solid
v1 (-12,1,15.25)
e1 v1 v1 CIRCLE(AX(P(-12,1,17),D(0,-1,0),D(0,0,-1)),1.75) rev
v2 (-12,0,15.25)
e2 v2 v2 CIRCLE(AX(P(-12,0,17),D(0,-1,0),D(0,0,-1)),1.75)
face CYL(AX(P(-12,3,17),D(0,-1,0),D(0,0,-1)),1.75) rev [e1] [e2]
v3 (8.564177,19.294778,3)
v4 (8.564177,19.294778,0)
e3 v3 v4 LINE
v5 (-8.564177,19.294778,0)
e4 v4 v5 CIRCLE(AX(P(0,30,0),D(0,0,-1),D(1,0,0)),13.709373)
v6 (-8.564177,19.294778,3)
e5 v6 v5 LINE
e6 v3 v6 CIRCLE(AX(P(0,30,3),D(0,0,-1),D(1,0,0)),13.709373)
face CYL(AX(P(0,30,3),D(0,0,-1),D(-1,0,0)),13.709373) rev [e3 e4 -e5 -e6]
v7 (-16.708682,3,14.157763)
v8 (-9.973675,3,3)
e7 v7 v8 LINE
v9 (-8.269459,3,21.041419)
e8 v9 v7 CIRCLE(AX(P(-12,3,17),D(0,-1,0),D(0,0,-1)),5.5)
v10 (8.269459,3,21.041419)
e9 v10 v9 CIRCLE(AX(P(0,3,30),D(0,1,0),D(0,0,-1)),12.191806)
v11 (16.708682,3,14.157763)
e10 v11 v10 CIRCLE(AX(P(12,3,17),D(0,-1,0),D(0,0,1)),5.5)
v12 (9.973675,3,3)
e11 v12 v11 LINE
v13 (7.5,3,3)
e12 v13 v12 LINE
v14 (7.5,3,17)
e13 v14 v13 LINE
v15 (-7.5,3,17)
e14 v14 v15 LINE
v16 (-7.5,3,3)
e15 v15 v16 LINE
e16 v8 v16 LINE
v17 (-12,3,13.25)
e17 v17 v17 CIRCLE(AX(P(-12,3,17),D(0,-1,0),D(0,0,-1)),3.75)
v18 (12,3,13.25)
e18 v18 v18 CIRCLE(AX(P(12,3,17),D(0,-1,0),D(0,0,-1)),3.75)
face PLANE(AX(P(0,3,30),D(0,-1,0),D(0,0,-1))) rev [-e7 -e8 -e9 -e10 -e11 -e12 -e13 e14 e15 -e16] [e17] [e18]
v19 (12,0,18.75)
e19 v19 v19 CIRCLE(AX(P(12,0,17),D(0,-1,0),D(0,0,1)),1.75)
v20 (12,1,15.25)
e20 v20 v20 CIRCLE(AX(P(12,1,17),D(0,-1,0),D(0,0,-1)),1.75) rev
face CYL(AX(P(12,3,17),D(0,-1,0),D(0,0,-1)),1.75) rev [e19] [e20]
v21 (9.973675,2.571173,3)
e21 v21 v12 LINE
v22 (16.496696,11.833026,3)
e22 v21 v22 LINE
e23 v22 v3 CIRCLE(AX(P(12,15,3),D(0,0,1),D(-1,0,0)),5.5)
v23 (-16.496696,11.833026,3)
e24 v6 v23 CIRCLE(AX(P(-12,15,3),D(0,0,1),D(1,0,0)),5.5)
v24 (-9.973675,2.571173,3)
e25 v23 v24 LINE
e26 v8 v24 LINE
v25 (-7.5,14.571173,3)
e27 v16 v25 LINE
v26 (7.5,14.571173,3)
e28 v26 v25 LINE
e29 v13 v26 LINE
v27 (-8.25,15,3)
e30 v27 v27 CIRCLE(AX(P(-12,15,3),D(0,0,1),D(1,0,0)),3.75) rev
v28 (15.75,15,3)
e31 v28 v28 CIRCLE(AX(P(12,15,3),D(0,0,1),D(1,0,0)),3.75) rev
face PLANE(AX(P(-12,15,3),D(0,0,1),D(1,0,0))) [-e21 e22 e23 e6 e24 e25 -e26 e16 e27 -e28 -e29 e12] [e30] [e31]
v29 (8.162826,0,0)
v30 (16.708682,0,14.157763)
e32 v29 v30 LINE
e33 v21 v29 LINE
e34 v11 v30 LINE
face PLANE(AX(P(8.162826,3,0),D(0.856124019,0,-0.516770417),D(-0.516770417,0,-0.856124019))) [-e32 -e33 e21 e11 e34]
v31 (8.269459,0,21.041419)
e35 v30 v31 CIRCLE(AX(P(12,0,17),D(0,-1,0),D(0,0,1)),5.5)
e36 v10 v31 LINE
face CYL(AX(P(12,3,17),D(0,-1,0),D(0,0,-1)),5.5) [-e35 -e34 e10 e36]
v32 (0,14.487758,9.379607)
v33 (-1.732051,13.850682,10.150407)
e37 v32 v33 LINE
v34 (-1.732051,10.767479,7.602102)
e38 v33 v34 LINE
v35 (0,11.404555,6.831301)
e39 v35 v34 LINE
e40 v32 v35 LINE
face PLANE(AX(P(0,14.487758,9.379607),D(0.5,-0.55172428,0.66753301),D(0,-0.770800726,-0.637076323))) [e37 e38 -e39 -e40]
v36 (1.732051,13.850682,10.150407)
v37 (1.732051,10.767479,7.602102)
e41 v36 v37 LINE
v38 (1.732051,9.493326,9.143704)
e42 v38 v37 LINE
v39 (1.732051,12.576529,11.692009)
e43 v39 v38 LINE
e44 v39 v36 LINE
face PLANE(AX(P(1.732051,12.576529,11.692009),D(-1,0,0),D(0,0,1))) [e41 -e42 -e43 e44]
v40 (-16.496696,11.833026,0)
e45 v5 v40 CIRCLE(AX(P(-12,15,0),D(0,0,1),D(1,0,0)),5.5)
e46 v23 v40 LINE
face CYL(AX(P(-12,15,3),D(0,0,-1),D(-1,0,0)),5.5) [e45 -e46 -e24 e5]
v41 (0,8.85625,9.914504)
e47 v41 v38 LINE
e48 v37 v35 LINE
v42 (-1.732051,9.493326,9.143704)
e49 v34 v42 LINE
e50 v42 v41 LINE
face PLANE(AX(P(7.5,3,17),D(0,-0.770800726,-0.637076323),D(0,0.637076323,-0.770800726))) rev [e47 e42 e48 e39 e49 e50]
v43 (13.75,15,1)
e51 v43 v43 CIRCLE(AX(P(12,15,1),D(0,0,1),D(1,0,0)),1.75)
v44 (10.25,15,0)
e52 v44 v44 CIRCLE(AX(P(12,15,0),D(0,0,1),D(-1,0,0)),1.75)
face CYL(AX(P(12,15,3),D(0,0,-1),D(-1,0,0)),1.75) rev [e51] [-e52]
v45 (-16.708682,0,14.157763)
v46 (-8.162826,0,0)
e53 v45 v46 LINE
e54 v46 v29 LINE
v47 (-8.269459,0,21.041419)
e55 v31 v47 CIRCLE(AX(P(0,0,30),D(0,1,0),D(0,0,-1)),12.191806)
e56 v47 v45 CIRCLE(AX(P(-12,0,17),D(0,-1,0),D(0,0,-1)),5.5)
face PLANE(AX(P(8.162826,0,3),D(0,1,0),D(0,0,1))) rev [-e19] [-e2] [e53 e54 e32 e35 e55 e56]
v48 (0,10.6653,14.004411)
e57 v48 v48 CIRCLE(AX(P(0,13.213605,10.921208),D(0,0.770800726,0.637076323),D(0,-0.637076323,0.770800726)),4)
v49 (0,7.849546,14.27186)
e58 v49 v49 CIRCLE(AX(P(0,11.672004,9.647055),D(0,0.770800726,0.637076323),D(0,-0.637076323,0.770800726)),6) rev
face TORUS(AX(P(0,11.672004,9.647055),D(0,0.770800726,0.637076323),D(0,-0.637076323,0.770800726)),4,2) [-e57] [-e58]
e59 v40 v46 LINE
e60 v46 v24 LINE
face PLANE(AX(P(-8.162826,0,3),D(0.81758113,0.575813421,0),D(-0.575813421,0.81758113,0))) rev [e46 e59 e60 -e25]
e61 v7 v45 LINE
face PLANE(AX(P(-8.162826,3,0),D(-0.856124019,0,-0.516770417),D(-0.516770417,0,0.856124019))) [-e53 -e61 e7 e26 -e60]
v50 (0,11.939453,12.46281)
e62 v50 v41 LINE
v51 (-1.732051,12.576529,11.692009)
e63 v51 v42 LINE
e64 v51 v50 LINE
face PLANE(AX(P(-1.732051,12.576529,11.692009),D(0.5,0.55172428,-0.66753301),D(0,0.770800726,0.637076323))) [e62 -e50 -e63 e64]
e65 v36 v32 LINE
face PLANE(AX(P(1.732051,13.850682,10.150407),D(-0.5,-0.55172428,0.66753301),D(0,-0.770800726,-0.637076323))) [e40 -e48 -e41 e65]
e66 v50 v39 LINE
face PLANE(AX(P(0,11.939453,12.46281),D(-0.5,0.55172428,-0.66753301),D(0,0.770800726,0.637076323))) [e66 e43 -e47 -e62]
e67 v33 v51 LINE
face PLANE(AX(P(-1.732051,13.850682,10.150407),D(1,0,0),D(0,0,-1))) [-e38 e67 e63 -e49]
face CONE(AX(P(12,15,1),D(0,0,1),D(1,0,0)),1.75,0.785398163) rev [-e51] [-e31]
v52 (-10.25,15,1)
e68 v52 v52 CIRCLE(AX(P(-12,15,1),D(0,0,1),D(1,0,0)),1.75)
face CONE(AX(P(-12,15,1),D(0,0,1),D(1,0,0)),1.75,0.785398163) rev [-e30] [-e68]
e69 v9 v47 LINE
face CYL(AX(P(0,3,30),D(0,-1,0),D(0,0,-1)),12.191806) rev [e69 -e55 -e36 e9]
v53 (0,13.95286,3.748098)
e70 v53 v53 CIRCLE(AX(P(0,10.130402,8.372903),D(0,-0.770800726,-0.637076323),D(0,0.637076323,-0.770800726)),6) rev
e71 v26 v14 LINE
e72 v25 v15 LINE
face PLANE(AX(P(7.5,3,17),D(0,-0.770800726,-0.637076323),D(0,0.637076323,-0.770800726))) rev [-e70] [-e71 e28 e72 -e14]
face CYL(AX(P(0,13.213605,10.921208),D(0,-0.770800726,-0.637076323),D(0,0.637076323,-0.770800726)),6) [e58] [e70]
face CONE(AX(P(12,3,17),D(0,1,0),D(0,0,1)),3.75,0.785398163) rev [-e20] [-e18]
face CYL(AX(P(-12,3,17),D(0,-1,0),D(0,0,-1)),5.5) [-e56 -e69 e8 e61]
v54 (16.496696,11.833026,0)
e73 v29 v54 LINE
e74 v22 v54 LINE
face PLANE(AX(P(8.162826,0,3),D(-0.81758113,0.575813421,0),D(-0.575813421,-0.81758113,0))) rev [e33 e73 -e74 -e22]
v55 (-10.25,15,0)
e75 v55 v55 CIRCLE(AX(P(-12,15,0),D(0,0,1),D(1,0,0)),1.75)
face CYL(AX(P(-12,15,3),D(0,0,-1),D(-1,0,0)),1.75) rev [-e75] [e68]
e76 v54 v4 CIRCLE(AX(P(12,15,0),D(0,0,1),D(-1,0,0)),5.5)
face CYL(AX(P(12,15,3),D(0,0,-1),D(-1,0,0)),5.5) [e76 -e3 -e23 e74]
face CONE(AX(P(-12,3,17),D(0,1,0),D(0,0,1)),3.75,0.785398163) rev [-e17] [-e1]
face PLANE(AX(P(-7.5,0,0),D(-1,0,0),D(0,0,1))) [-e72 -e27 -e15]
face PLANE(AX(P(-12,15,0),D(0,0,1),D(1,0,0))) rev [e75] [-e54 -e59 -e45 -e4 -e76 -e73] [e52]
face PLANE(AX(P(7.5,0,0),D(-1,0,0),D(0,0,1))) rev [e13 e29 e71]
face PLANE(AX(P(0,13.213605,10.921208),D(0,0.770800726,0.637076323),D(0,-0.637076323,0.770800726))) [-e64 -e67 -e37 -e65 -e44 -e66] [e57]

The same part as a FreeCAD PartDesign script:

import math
import FreeCAD as App
import Part
import Sketcher
Q = App.Units.Quantity


def edges_at(feature, points):
    """Names of the edges that pass closest to the given points."""
    edges = feature.Shape.Edges
    near = lambda p: min(range(len(edges)), key=lambda i: edges[i].distToShape(Part.Vertex(*p))[0])
    return sorted({f"Edge{near(p) + 1}" for p in points})


def add_polygon(sketch, points):
    """Adds a closed chain of lines whose ends are joined by coincident constraints."""
    first, n = sketch.GeometryCount, len(points)
    for a, b in zip(points, points[1:] + points[:1]):
        sketch.addGeometry(Part.LineSegment(App.Vector(*a, 0), App.Vector(*b, 0)), False)
    for i in range(n):
        sketch.addConstraint(Sketcher.Constraint("Coincident", first + i, 2, first + (i + 1) % n, 1))

doc = App.newDocument("Part")
body = doc.addObject("PartDesign::Body", "Body")

# Sketch on XY plane
sketch1 = doc.addObject("Sketcher::SketchObject", "Sketch")
body.addObject(sketch1)
sketch1.AttachmentSupport = (doc.XY_Plane, [""])
sketch1.MapMode = "FlatFace"
sketch1.addGeometry([
    Part.LineSegment(App.Vector(-8.2, 0, 0), App.Vector(8.2, 0, 0)),  # 0
    Part.LineSegment(App.Vector(8.2, 0, 0), App.Vector(16.5, 11.8, 0)),  # 1
    Part.ArcOfCircle(Part.Circle(App.Vector(12, 15, 0), App.Vector(0, 0, 1), 5.5), math.radians(-35), math.radians(129)),  # 2
    Part.ArcOfCircle(Part.Circle(App.Vector(0, 30, 0), App.Vector(0, 0, 1), 13.7), math.radians(-129), math.radians(-51)),  # 3
    Part.ArcOfCircle(Part.Circle(App.Vector(-12, 15, 0), App.Vector(0, 0, 1), 5.5), math.radians(51), math.radians(215)),  # 4
    Part.LineSegment(App.Vector(-16.5, 11.8, 0), App.Vector(-8.2, 0, 0)),  # 5
    Part.Circle(App.Vector(12, 15, 0), App.Vector(0, 0, 1), 1.8),  # 6
    Part.Circle(App.Vector(-12, 15, 0), App.Vector(0, 0, 1), 1.8),  # 7
], False)
sketch1.addConstraint([
    Sketcher.Constraint("Coincident", 0, 2, 1, 1),
    Sketcher.Constraint("Tangent", 1, 2, 2, 1),
    Sketcher.Constraint("Tangent", 2, 2, 3, 2),
    Sketcher.Constraint("Tangent", 3, 1, 4, 1),
    Sketcher.Constraint("Tangent", 4, 2, 5, 1),
    Sketcher.Constraint("Coincident", 5, 2, 0, 1),
    Sketcher.Constraint("Horizontal", 0),
    Sketcher.Constraint("Coincident", 6, 3, 2, 3),
    Sketcher.Constraint("Coincident", 7, 3, 4, 3),
    Sketcher.Constraint("Equal", 2, 4),
    Sketcher.Constraint("Equal", 6, 7),
    Sketcher.Constraint("Symmetric", 0, 2, 5, 2, -1, 1),
    Sketcher.Constraint("Symmetric", 2, 3, 4, 3, -2),
    Sketcher.Constraint("Diameter", 6, Q("3.5 mm")),
    Sketcher.Constraint("Radius", 2, Q("5.5 mm")),
    Sketcher.Constraint("DistanceX", -1, 1, 2, 3, Q("12 mm")),
    Sketcher.Constraint("DistanceY", -1, 1, 2, 3, Q("15 mm")),
    Sketcher.Constraint("DistanceY", -1, 1, 3, 3, Q("30 mm")),
    Sketcher.Constraint("DistanceX", 0, 1, 0, 2, Q("16.325651 mm")),
])
pad1 = doc.addObject("PartDesign::Pad", "Pad")
body.addObject(pad1)
pad1.Profile = sketch1
pad1.Length = 3

# Sketch on XZ plane
sketch2 = doc.addObject("Sketcher::SketchObject", "Sketch001")
body.addObject(sketch2)
sketch2.AttachmentSupport = (doc.XZ_Plane, [""])
sketch2.MapMode = "FlatFace"
sketch2.addGeometry([
    Part.LineSegment(App.Vector(-8.2, 0, 0), App.Vector(8.2, 0, 0)),  # 0
    Part.LineSegment(App.Vector(8.2, 0, 0), App.Vector(16.7, 14.2, 0)),  # 1
    Part.ArcOfCircle(Part.Circle(App.Vector(12, 17, 0), App.Vector(0, 0, 1), 5.5), math.radians(-31), math.radians(133)),  # 2
    Part.ArcOfCircle(Part.Circle(App.Vector(0, 30, 0), App.Vector(0, 0, 1), 12.2), math.radians(-133), math.radians(-47)),  # 3
    Part.ArcOfCircle(Part.Circle(App.Vector(-12, 17, 0), App.Vector(0, 0, 1), 5.5), math.radians(47), math.radians(211)),  # 4
    Part.LineSegment(App.Vector(-16.7, 14.2, 0), App.Vector(-8.2, 0, 0)),  # 5
    Part.Circle(App.Vector(12, 17, 0), App.Vector(0, 0, 1), 1.8),  # 6
    Part.Circle(App.Vector(-12, 17, 0), App.Vector(0, 0, 1), 1.8),  # 7
], False)
sketch2.addConstraint([
    Sketcher.Constraint("Coincident", 0, 2, 1, 1),
    Sketcher.Constraint("Tangent", 1, 2, 2, 1),
    Sketcher.Constraint("Tangent", 2, 2, 3, 2),
    Sketcher.Constraint("Tangent", 3, 1, 4, 1),
    Sketcher.Constraint("Tangent", 4, 2, 5, 1),
    Sketcher.Constraint("Coincident", 5, 2, 0, 1),
    Sketcher.Constraint("Horizontal", 0),
    Sketcher.Constraint("Coincident", 6, 3, 2, 3),
    Sketcher.Constraint("Coincident", 7, 3, 4, 3),
    Sketcher.Constraint("Equal", 2, 4),
    Sketcher.Constraint("Equal", 6, 7),
    Sketcher.Constraint("Symmetric", 0, 2, 5, 2, -1, 1),
    Sketcher.Constraint("Symmetric", 2, 3, 4, 3, -2),
    Sketcher.Constraint("Diameter", 6, Q("3.5 mm")),
    Sketcher.Constraint("Radius", 2, Q("5.5 mm")),
    Sketcher.Constraint("DistanceX", -1, 1, 2, 3, Q("12 mm")),
    Sketcher.Constraint("DistanceY", -1, 1, 2, 3, Q("17 mm")),
    Sketcher.Constraint("DistanceY", -1, 1, 3, 3, Q("30 mm")),
    Sketcher.Constraint("DistanceX", 0, 1, 0, 2, Q("16.325651 mm")),
])
pad2 = doc.addObject("PartDesign::Pad", "Pad001")
body.addObject(pad2)
pad2.Profile = sketch2
pad2.Length = 3
pad2.Reversed = True

# Sketch on YZ plane
sketch3 = doc.addObject("Sketcher::SketchObject", "Sketch002")
body.addObject(sketch3)
sketch3.AttachmentSupport = (doc.YZ_Plane, [""])
sketch3.MapMode = "FlatFace"
add_polygon(sketch3, [(3, 17), (3, 3), (15, 3)])  # lines 0-2
sketch3.addConstraint([
    Sketcher.Constraint("Vertical", 0),
    Sketcher.Constraint("Horizontal", 1),
    Sketcher.Constraint("DistanceY", 0, 2, 0, 1, Q("14 mm")),
    Sketcher.Constraint("DistanceX", -1, 1, 0, 2, Q("3 mm")),
    Sketcher.Constraint("DistanceY", -1, 1, 0, 2, Q("3 mm")),
    Sketcher.Constraint("Distance", 2, Q("18.16293 mm")),
])
pad3 = doc.addObject("PartDesign::Pad", "Pad002")
body.addObject(pad3)
pad3.Profile = sketch3
pad3.Length = 15
pad3.Midplane = True

# Sketch on an angled plane
sketch4 = doc.addObject("Sketcher::SketchObject", "Sketch003")
body.addObject(sketch4)
sketch4.Placement = App.Placement(App.Vector(0, 10.130402, 8.372903), App.Rotation(App.Vector(1, 0, 0), App.Vector(0, 0.637076323, -0.770800726), App.Vector(0, 0.770800726, 0.637076323), "ZXY"))
sketch4.addGeometry(Part.Circle(App.Vector(0, 0, 0), App.Vector(0, 0, 1), 6), False)  # 0
add_polygon(sketch4, [(-1.7, 1), (0, 2), (1.7, 1), (1.7, -1), (0, -2), (-1.7, -1)])  # lines 1-6
sketch4.addConstraint([
    Sketcher.Constraint("Vertical", 3),
    Sketcher.Constraint("Vertical", 6),
    Sketcher.Constraint("Coincident", 0, 3, -1, 1),
    Sketcher.Constraint("Symmetric", 1, 2, 4, 2, -1, 1),
    Sketcher.Constraint("Symmetric", 2, 2, 5, 2, -1, 1),
    Sketcher.Constraint("PointOnObject", 1, 2, -2),
    Sketcher.Constraint("Parallel", 1, 4),
    Sketcher.Constraint("Horizontal", 3, 2, 5, 2),
    Sketcher.Constraint("Diameter", 0, Q("12 mm")),
    Sketcher.Constraint("DistanceY", 3, 2, 3, 1, Q("2 mm")),
    Sketcher.Constraint("Angle", 1, Q("30 deg")),
    Sketcher.Constraint("Distance", 1, Q("2 mm")),
])
pad4 = doc.addObject("PartDesign::Pad", "Pad003")
body.addObject(pad4)
pad4.Profile = sketch4
pad4.Length = 4
doc.recompute()

fillet = doc.addObject("PartDesign::Fillet", "Fillet")
body.addObject(fillet)
fillet.Base = (pad4, edges_at(pad4, [(0, 9.391, 15.546)]))
fillet.Radius = 2
doc.recompute()

chamfer = doc.addObject("PartDesign::Chamfer", "Chamfer")
body.addObject(chamfer)
chamfer.Base = (fillet, edges_at(fillet, [
    (-13.75, 15, 3),
    (13.75, 15, 3),
    (12, 3, 15.25),
    (-12, 3, 18.75),
]))
chamfer.Size = 2

doc.recompute()
